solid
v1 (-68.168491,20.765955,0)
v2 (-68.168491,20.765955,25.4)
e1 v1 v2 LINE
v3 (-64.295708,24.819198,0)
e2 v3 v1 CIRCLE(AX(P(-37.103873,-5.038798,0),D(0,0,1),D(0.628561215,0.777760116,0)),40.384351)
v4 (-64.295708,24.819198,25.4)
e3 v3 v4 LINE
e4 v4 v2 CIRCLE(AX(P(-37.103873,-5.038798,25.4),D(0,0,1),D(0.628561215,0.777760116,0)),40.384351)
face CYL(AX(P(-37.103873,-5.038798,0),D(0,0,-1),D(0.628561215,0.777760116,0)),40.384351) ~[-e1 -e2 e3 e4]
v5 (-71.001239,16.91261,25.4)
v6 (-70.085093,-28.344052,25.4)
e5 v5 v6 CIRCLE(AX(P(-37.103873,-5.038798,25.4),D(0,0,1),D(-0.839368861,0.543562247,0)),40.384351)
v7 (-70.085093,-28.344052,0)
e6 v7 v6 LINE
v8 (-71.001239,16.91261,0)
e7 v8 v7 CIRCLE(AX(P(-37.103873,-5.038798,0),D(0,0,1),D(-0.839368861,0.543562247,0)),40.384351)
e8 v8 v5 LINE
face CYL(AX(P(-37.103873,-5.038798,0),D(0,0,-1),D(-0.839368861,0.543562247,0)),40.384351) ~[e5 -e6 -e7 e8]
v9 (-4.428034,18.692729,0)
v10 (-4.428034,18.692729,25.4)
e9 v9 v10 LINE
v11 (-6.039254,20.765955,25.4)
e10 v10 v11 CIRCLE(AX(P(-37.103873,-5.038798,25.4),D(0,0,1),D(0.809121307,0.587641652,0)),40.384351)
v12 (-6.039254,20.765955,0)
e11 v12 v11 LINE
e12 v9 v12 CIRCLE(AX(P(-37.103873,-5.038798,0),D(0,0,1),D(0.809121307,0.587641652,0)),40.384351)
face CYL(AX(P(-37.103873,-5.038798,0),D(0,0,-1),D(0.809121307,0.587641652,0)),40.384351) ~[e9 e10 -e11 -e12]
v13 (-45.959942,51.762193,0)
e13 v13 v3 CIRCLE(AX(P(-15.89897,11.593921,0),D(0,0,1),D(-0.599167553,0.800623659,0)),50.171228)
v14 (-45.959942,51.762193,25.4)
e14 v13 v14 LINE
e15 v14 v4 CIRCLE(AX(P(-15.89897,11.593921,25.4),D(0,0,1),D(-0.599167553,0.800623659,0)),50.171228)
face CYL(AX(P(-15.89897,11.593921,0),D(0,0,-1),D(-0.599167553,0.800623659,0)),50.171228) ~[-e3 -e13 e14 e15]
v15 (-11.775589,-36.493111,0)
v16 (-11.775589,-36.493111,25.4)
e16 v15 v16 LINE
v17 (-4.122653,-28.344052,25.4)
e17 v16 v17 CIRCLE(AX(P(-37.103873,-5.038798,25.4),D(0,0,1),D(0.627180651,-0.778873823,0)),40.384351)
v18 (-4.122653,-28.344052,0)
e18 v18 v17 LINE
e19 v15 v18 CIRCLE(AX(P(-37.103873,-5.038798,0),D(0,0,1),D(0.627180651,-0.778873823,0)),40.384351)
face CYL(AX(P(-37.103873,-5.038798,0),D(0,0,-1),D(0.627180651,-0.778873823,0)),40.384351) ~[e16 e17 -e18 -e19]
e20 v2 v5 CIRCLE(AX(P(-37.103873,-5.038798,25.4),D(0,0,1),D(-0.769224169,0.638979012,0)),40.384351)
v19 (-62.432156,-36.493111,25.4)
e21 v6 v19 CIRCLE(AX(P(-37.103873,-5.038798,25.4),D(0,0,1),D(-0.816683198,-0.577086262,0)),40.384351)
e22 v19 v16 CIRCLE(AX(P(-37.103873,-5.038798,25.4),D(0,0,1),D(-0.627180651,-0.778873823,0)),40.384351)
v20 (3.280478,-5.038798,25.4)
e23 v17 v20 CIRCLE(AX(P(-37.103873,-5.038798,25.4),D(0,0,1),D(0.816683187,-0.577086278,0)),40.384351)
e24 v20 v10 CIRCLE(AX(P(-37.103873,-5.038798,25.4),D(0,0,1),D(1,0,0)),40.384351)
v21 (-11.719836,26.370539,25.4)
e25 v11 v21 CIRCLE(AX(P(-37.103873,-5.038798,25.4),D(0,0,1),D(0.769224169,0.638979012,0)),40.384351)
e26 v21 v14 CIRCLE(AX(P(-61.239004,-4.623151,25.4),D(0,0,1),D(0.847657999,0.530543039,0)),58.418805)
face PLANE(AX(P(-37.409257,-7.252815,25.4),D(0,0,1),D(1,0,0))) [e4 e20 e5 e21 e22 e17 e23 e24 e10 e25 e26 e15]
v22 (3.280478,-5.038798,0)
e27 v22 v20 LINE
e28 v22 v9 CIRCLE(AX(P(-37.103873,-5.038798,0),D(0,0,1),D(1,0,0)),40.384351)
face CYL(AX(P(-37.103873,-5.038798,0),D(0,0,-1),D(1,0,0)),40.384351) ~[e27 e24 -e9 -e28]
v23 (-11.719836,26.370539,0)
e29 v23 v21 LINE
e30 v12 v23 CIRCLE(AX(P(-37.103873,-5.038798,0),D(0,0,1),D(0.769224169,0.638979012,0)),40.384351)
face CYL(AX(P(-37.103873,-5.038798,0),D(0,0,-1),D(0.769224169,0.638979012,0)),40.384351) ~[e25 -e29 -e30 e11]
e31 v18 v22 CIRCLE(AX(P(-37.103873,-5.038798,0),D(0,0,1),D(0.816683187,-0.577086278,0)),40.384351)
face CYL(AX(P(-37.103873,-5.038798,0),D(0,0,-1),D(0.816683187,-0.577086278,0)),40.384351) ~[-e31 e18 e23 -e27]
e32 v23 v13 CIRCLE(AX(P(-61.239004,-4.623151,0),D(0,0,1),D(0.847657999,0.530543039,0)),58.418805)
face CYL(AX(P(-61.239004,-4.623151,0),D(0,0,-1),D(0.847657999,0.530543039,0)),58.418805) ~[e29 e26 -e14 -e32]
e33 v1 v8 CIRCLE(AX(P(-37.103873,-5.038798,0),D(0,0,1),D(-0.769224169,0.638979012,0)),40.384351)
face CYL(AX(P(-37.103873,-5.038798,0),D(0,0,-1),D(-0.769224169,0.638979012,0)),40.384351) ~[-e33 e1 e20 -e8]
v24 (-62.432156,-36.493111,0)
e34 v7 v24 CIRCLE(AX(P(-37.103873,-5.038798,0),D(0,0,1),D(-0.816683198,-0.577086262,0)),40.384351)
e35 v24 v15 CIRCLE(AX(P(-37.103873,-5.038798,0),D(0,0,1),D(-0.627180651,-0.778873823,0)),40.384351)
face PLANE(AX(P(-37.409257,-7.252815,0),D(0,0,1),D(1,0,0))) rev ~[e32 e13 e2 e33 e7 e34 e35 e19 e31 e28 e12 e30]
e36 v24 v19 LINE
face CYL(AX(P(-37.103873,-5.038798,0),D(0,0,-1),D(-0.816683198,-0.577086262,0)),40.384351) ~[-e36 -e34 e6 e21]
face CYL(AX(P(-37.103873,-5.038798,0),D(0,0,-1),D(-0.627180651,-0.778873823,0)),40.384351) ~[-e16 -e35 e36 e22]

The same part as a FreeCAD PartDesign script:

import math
import FreeCAD as App
import Part
import Sketcher
Q = App.Units.Quantity

doc = App.newDocument("Part")
body = doc.addObject("PartDesign::Body", "Body")

sketch1 = body.newObject("Sketcher::SketchObject", "Sketch")
sketch1.AttachmentSupport = (doc.getObject("XY_Plane"), [""])
sketch1.MapMode = "FlatFace"
sketch1.addGeometry([
    Part.ArcOfCircle(Part.Circle(App.Vector(-37.103873, -5.038798, 0), App.Vector(0, 0, 1), 40.384351), math.radians(-144.754134), math.radians(-128.842421)),
    Part.ArcOfCircle(Part.Circle(App.Vector(-37.103873, -5.038798, 0), App.Vector(0, 0, 1), 40.384351), math.radians(-128.842421), math.radians(-51.157579)),
    Part.ArcOfCircle(Part.Circle(App.Vector(-37.103873, -5.038798, 0), App.Vector(0, 0, 1), 40.384351), math.radians(-51.157579), math.radians(-35.245867)),
    Part.ArcOfCircle(Part.Circle(App.Vector(-37.103873, -5.038798, 0), App.Vector(0, 0, 1), 40.384351), math.radians(-35.245867), math.radians(0)),
    Part.ArcOfCircle(Part.Circle(App.Vector(-37.103873, -5.038798, 0), App.Vector(0, 0, 1), 40.384351), math.radians(0), math.radians(35.989831)),
    Part.ArcOfCircle(Part.Circle(App.Vector(-37.103873, -5.038798, 0), App.Vector(0, 0, 1), 40.384351), math.radians(35.989831), math.radians(39.715729)),
    Part.ArcOfCircle(Part.Circle(App.Vector(-37.103873, -5.038798, 0), App.Vector(0, 0, 1), 40.384351), math.radians(39.715729), math.radians(51.055949)),
    Part.ArcOfCircle(Part.Circle(App.Vector(-61.239004, -4.623151, 0), App.Vector(0, 0, 1), 58.418805), math.radians(32.042153), math.radians(74.838329)),
    Part.ArcOfCircle(Part.Circle(App.Vector(-15.89897, 11.593921, 0), App.Vector(0, 0, 1), 50.171228), math.radians(126.810301), math.radians(164.716052)),
    Part.ArcOfCircle(Part.Circle(App.Vector(-37.103873, -5.038798, 0), App.Vector(0, 0, 1), 40.384351), math.radians(132.324292), math.radians(140.284271)),
    Part.ArcOfCircle(Part.Circle(App.Vector(-37.103873, -5.038798, 0), App.Vector(0, 0, 1), 40.384351), math.radians(140.284271), math.radians(147.073533)),
    Part.ArcOfCircle(Part.Circle(App.Vector(-37.103873, -5.038798, 0), App.Vector(0, 0, 1), 40.384351), math.radians(147.073533), math.radians(215.245866)),
], False)
sketch1.addConstraint([
    Sketcher.Constraint("Tangent", 0, 2, 1, 1),
    Sketcher.Constraint("Tangent", 1, 2, 2, 1),
    Sketcher.Constraint("Tangent", 2, 2, 3, 1),
    Sketcher.Constraint("Tangent", 3, 2, 4, 1),
    Sketcher.Constraint("Tangent", 4, 2, 5, 1),
    Sketcher.Constraint("Tangent", 5, 2, 6, 1),
    Sketcher.Constraint("Coincident", 6, 2, 7, 1),
    Sketcher.Constraint("Coincident", 7, 2, 8, 1),
    Sketcher.Constraint("Coincident", 8, 2, 9, 1),
    Sketcher.Constraint("Tangent", 9, 2, 10, 1),
    Sketcher.Constraint("Tangent", 10, 2, 11, 1),
    Sketcher.Constraint("Tangent", 11, 2, 0, 1),
    Sketcher.Constraint("Coincident", 2, 3, 0, 3),
    Sketcher.Constraint("Coincident", 4, 3, 0, 3),
    Sketcher.Constraint("Coincident", 6, 3, 0, 3),
    Sketcher.Constraint("Coincident", 9, 3, 0, 3),
    Sketcher.Constraint("Equal", 6, 9),
    Sketcher.Constraint("Horizontal", 0, 2, 1, 2),
    Sketcher.Constraint("Horizontal", 11, 3, 3, 2),
    Sketcher.Constraint("Horizontal", 5, 2, 9, 2),
    Sketcher.Constraint("Horizontal", 2, 2, 11, 2),
    Sketcher.Constraint("Radius", 0, 40.384351),
    Sketcher.Constraint("Radius", 8, 50.171228),
    Sketcher.Constraint("Radius", 7, 58.418805),
    Sketcher.Constraint("DistanceY", 11, 2, 7, 3, 23.720901),
    Sketcher.Constraint("DistanceY", 7, 3, -1, 1, 4.623151),
    Sketcher.Constraint("DistanceX", 8, 3, -1, 1, 15.89897),
    Sketcher.Constraint("DistanceY", -1, 1, 8, 3, 11.593921),
    Sketcher.Constraint("DistanceY", 0, 2, -1, 1, 36.493111),
    Sketcher.Constraint("DistanceX", 1, 2, -1, 1, 11.775589),
    Sketcher.Constraint("DistanceY", -1, 1, 4, 2, 18.692729),
    Sketcher.Constraint("DistanceY", -1, 1, 6, 2, 26.370539),
    Sketcher.Constraint("DistanceX", 9, 2, -1, 1, 68.168491),
    Sketcher.Constraint("DistanceX", 10, 2, -1, 1, 71.001239),
    Sketcher.Constraint("DistanceY", -1, 1, 10, 2, 16.91261),
])
pad1 = body.newObject("PartDesign::Pad", "Pad")
pad1.Profile = sketch1
pad1.Length = Q("1 in")

doc.recompute()
